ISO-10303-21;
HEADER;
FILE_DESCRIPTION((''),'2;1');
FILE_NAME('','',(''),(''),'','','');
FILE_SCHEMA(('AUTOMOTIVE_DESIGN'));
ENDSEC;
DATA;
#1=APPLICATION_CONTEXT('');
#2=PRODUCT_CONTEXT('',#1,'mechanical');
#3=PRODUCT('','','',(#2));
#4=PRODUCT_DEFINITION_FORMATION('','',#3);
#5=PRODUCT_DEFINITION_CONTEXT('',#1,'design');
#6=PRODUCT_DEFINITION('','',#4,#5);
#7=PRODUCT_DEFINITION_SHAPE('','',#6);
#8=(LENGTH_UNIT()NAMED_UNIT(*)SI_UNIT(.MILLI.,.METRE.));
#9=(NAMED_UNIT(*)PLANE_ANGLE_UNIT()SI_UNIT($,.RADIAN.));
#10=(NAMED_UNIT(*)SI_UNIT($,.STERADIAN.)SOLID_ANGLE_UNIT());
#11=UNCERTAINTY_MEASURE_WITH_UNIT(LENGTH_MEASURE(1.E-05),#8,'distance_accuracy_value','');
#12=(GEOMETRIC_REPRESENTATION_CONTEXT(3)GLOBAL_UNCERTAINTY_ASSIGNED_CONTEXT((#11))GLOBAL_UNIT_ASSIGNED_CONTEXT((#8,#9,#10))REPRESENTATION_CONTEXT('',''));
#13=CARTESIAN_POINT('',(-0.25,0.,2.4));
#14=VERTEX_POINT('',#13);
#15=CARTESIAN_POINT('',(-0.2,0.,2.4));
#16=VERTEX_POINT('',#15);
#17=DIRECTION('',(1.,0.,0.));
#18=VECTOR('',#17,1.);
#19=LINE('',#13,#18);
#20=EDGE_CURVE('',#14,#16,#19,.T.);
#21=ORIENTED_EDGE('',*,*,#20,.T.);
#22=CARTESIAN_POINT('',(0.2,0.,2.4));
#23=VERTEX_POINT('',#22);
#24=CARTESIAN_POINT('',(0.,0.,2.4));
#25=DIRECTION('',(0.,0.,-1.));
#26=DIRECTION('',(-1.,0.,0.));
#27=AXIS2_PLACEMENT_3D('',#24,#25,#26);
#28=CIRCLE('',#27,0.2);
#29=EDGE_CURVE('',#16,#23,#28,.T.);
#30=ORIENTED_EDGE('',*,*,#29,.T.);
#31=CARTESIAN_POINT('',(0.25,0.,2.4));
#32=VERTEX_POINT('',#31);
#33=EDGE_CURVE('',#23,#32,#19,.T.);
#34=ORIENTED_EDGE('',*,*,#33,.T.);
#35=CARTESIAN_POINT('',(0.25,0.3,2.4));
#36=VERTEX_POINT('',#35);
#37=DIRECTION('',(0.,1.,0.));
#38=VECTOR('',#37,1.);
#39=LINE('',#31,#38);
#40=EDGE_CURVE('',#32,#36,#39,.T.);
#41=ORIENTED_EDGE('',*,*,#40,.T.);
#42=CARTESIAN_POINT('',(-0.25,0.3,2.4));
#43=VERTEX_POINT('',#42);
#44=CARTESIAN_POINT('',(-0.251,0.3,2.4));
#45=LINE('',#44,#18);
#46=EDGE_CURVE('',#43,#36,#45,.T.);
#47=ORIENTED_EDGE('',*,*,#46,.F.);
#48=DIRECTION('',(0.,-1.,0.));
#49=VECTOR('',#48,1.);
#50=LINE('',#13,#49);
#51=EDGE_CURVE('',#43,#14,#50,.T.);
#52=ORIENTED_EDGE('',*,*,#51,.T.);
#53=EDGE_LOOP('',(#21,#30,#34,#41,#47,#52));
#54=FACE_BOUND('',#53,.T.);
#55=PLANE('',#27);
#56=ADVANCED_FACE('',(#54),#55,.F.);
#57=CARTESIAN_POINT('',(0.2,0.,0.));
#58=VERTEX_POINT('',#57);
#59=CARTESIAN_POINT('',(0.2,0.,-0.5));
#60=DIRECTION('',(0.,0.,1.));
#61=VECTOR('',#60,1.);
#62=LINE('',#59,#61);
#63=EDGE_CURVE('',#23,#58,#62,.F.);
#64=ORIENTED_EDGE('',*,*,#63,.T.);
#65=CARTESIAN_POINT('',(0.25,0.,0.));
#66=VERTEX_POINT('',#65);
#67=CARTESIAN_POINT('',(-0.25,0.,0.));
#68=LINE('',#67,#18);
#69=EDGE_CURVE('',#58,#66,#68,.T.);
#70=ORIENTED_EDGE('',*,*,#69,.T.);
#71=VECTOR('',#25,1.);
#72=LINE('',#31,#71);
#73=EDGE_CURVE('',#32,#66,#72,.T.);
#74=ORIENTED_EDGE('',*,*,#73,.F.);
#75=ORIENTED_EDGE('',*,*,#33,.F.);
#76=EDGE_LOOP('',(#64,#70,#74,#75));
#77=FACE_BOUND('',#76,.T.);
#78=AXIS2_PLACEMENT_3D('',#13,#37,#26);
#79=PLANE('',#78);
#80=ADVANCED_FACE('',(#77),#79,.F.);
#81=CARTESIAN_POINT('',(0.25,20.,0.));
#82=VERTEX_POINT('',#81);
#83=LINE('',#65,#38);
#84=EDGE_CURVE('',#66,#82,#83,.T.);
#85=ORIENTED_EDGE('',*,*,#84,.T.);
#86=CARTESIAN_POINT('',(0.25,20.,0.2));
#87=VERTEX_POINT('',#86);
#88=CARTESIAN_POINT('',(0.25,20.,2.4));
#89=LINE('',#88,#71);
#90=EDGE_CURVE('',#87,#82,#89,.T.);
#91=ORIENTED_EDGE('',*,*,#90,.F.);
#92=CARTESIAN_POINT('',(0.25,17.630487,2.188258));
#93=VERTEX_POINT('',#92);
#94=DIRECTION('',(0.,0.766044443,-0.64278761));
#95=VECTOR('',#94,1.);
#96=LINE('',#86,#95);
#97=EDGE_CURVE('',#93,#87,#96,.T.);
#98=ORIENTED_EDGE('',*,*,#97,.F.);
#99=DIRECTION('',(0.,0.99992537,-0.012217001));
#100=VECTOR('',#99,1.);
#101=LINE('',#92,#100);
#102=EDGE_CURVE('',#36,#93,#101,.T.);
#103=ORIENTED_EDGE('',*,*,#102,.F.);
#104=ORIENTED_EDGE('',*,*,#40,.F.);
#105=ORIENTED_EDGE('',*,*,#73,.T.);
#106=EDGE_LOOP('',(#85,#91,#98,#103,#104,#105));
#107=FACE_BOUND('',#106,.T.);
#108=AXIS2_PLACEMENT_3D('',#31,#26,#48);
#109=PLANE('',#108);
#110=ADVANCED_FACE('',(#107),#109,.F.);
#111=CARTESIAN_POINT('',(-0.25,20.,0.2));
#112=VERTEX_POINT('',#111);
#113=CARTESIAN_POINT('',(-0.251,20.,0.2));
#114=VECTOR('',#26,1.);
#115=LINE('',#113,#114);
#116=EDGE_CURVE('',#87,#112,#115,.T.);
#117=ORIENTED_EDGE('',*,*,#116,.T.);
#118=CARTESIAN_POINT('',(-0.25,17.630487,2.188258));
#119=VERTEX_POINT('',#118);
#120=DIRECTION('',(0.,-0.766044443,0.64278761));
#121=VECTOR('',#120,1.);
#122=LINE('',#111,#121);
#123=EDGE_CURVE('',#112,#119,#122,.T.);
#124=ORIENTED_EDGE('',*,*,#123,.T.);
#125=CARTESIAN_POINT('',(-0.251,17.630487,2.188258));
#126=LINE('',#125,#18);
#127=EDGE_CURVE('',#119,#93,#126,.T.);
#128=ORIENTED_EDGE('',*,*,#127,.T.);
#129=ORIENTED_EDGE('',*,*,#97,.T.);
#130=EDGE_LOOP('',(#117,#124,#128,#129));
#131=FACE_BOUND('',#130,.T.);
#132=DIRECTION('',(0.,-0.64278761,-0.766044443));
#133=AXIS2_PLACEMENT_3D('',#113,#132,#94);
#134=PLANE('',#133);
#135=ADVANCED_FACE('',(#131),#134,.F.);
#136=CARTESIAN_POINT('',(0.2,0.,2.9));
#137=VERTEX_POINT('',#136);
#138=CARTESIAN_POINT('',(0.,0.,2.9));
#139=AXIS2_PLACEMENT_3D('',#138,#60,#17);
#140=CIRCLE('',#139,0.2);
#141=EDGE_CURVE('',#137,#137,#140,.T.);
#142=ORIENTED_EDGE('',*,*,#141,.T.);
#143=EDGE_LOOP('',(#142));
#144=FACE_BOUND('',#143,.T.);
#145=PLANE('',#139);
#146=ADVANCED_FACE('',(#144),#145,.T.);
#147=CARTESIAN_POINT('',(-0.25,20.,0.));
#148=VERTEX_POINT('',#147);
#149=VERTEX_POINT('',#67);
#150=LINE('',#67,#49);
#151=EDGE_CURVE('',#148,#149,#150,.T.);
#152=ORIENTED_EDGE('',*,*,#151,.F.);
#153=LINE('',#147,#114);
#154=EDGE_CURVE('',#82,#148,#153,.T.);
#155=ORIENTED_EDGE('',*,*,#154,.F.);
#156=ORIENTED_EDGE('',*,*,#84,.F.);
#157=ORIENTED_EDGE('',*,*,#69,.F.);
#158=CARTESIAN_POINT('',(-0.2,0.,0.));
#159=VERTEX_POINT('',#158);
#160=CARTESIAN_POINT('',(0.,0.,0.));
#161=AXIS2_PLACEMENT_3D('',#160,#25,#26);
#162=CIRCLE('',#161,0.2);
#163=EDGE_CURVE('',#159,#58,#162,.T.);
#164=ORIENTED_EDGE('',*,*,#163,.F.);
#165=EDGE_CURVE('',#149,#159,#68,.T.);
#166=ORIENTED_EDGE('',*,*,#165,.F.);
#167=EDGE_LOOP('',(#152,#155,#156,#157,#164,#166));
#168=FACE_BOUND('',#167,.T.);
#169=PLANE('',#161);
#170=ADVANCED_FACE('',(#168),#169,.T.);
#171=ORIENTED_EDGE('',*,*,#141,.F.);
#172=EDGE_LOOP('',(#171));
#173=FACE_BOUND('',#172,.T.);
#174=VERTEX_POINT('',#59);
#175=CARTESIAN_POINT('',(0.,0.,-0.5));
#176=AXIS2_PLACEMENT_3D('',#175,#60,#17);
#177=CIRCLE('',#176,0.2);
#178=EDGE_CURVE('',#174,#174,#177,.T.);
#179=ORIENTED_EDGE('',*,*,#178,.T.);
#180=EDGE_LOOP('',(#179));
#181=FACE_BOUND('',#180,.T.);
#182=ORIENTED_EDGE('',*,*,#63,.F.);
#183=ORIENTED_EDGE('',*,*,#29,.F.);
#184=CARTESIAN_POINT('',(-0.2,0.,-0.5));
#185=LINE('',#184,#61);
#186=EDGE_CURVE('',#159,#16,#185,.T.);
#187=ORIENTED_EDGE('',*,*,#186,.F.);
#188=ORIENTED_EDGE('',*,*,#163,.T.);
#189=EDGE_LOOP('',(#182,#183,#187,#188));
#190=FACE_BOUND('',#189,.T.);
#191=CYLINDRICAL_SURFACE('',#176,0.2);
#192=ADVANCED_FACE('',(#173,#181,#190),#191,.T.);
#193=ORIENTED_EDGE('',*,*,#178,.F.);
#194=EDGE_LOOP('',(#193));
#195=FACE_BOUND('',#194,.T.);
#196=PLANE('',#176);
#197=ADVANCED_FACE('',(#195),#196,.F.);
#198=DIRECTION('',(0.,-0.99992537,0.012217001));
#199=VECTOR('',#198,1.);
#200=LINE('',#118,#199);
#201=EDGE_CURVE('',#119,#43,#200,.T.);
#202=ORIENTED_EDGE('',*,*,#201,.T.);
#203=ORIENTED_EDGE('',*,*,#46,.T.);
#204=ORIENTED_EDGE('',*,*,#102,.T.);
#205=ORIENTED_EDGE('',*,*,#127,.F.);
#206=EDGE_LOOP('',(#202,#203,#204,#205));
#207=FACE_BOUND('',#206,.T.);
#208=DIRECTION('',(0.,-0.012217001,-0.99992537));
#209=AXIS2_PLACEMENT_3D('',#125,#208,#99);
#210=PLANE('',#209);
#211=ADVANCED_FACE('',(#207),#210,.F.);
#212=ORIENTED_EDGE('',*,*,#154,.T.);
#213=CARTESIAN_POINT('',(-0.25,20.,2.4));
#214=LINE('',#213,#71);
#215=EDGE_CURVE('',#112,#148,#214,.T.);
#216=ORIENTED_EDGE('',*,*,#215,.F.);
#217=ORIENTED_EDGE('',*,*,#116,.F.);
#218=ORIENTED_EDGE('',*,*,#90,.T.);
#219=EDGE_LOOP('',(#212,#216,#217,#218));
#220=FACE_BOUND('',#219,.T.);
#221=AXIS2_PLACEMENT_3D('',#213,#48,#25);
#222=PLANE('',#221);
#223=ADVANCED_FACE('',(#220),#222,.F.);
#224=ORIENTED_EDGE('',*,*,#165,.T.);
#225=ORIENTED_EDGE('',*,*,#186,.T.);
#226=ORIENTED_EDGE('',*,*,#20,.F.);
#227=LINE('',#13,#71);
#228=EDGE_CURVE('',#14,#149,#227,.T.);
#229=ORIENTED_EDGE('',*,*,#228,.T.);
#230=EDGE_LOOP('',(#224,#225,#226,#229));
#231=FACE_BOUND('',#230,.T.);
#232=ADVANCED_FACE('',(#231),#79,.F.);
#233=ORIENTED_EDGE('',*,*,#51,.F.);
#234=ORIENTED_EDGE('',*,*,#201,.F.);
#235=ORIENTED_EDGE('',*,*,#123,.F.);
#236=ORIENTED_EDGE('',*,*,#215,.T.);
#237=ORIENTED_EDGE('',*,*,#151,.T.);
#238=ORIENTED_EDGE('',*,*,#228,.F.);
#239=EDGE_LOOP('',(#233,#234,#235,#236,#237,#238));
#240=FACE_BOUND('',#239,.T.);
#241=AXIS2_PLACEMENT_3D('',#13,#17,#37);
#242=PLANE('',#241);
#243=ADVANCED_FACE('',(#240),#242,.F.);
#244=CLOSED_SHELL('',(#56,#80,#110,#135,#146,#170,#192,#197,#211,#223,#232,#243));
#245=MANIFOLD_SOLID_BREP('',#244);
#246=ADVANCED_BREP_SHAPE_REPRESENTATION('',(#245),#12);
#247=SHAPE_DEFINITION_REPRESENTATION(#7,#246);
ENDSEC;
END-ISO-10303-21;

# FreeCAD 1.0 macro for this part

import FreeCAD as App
import Part
import Sketcher

V = App.Vector
Q = App.Units.Quantity


def add_polygon(sketch, points):
    """Adds a closed chain of lines whose ends are joined by coincident constraints."""
    first, n = sketch.GeometryCount, len(points)
    for a, b in zip(points, points[1:] + points[:1]):
        sketch.addGeometry(Part.LineSegment(App.Vector(*a, 0), App.Vector(*b, 0)), False)
    for i in range(n):
        sketch.addConstraint(Sketcher.Constraint("Coincident", first + i, 2, first + (i + 1) % n, 1))

doc = App.newDocument("Part")
body = doc.addObject("PartDesign::Body", "Body")

# Sketch on XY plane
sketch1 = body.newObject("Sketcher::SketchObject", "Sketch")
sketch1.AttachmentSupport = (doc.getObject("XY_Plane"), [""])
sketch1.MapMode = "FlatFace"
add_polygon(sketch1, [(-0.2, 20), (-0.2, 0), (0.2, 0), (0.2, 20)])  # lines 0-3
sketch1.addConstraint([
    Sketcher.Constraint("Vertical", 0),
    Sketcher.Constraint("Horizontal", 1),
    Sketcher.Constraint("Vertical", 2),
    Sketcher.Constraint("Horizontal", 3),
    Sketcher.Constraint("Symmetric", 0, 2, 1, 2, -1, 1),
    Sketcher.Constraint("DistanceY", 0, 2, 0, 1, 20.0),
    Sketcher.Constraint("DistanceX", 1, 1, 1, 2, 0.5),
])
pad1 = body.newObject("PartDesign::Pad", "Pad")
pad1.Profile = sketch1
pad1.Length = 2.4

# Sketch on XY plane
sketch2 = body.newObject("Sketcher::SketchObject", "Sketch001")
sketch2.AttachmentSupport = (doc.getObject("XY_Plane"), [""])
sketch2.MapMode = "FlatFace"
sketch2.AttachmentOffset = App.Placement(V(0, 0, 2.4), App.Rotation())
sketch2.addGeometry(Part.Circle(V(0, 0, 0), V(0, 0, 1), 0.2), False)
sketch2.addConstraint([
    Sketcher.Constraint("Coincident", 0, 3, -1, 1),
    Sketcher.Constraint("Diameter", 0, 0.4),
])
pad2 = body.newObject("PartDesign::Pad", "Pad001")
pad2.Profile = sketch2
pad2.Type = "TwoLengths"
pad2.Length = 0.5
pad2.Length2 = 2.9

# Sketch on YZ plane
sketch3 = body.newObject("Sketcher::SketchObject", "Sketch002")
sketch3.AttachmentSupport = (doc.getObject("YZ_Plane"), [""])
sketch3.MapMode = "FlatFace"
sketch3.AttachmentOffset = App.Placement(V(0, 0, 0.25), App.Rotation())
add_polygon(sketch3, [(0.3, 3.1), (0.3, 2.4), (17.6, 2.2), (20, 0.2), (41.7, 0.2), (41.7, 3.1)])  # lines 0-5
sketch3.addConstraint([
    Sketcher.Constraint("Vertical", 0),
    Sketcher.Constraint("Horizontal", 3),
    Sketcher.Constraint("Vertical", 4),
    Sketcher.Constraint("Horizontal", 5),
    Sketcher.Constraint("Angle", 2, Q("-40 deg")),
    Sketcher.Constraint("DistanceX", -1, 1, 2, 2, 20.0),
    Sketcher.Constraint("Angle", 1, Q("-0.7 deg")),
    Sketcher.Constraint("DistanceX", -1, 1, 0, 2, 0.3),
    Sketcher.Constraint("DistanceY", -1, 1, 0, 2, 2.4),
    Sketcher.Constraint("DistanceY", -1, 1, 2, 2, 0.2),
    Sketcher.Constraint("DistanceX", 3, 1, 3, 2, 21.705802),
    Sketcher.Constraint("DistanceY", 0, 2, 0, 1, 0.730096),
])
pocket1 = body.newObject("PartDesign::Pocket", "Pocket")
pocket1.Profile = sketch3
pocket1.Length = 0.5

doc.recompute()
